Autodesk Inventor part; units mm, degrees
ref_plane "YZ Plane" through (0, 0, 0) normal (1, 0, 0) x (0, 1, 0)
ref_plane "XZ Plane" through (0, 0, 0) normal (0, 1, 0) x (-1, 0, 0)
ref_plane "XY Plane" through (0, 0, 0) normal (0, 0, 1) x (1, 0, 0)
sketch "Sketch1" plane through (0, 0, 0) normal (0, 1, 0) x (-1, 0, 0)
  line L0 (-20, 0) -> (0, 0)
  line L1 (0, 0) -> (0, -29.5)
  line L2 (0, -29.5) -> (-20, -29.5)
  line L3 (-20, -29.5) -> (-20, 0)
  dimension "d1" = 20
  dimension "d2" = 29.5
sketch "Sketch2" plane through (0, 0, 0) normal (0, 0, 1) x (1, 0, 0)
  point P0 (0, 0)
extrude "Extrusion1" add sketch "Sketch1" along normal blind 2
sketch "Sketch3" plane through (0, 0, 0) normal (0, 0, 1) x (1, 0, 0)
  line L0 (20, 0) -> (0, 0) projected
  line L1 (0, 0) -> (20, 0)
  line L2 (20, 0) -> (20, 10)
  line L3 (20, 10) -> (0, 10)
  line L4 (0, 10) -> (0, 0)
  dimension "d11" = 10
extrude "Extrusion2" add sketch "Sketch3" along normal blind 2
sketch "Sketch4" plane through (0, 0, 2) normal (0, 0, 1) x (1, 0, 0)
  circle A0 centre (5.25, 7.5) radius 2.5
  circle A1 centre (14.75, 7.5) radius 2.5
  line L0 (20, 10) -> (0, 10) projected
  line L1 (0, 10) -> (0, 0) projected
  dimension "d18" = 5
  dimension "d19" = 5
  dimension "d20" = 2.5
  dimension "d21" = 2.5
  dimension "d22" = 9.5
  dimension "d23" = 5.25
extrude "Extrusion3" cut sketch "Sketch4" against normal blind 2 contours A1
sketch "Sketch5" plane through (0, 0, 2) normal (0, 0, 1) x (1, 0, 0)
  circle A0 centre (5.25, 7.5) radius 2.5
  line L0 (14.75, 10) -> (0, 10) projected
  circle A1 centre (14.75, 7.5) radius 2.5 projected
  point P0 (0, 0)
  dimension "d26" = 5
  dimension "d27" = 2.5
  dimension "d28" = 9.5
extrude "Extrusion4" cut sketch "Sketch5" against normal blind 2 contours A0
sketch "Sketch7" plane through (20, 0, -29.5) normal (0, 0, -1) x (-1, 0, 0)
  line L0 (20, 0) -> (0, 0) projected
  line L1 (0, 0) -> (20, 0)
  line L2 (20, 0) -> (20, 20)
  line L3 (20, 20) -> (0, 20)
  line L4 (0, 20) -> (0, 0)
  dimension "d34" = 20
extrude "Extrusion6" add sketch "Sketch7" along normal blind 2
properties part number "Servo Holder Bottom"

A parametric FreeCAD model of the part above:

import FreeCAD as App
import Part
import Sketcher

V = App.Vector


def add_polygon(sketch, points):
    """Adds a closed chain of lines whose ends are joined by coincident constraints."""
    first, n = sketch.GeometryCount, len(points)
    for a, b in zip(points, points[1:] + points[:1]):
        sketch.addGeometry(Part.LineSegment(App.Vector(*a, 0), App.Vector(*b, 0)), False)
    for i in range(n):
        sketch.addConstraint(Sketcher.Constraint("Coincident", first + i, 2, first + (i + 1) % n, 1))

doc = App.newDocument("Part")
body = doc.addObject("PartDesign::Body", "Body")

sketch1 = body.newObject("Sketcher::SketchObject", "Sketch")
sketch1.AttachmentSupport = (doc.getObject("XZ_Plane"), [""])
sketch1.MapMode = "FlatFace"
add_polygon(sketch1, [(0, 0), (20, 0), (20, -30), (0, -30)])
sketch1.addConstraint([
    Sketcher.Constraint("Horizontal", 0),
    Sketcher.Constraint("Vertical", 1),
    Sketcher.Constraint("Horizontal", 2),
    Sketcher.Constraint("Vertical", 3),
    Sketcher.Constraint("Coincident", 3, 2, -1, 1),
    Sketcher.Constraint("DistanceX", 0, 1, 0, 2, 20.0),
    Sketcher.Constraint("DistanceY", 1, 2, 1, 1, 29.5),
])
pad1 = body.newObject("PartDesign::Pad", "Pad")
pad1.Profile = sketch1
pad1.Length = 2
pad1.Reversed = True

sketch2 = body.newObject("Sketcher::SketchObject", "Sketch001")
sketch2.AttachmentSupport = (doc.getObject("XY_Plane"), [""])
sketch2.MapMode = "FlatFace"
add_polygon(sketch2, [(0, 0), (20, 0), (20, 10), (0, 10)])
sketch2.addConstraint([
    Sketcher.Constraint("Horizontal", 0),
    Sketcher.Constraint("Vertical", 1),
    Sketcher.Constraint("Horizontal", 2),
    Sketcher.Constraint("Vertical", 3),
    Sketcher.Constraint("Coincident", 3, 2, -1, 1),
    Sketcher.Constraint("DistanceY", 1, 1, 1, 2, 10.0),
    Sketcher.Constraint("DistanceX", 0, 1, 0, 2, 20.0),
])
pad2 = body.newObject("PartDesign::Pad", "Pad001")
pad2.Profile = sketch2
pad2.Length = 2

sketch3 = body.newObject("Sketcher::SketchObject", "Sketch002")
sketch3.AttachmentSupport = (doc.getObject("XY_Plane"), [""])
sketch3.MapMode = "FlatFace"
sketch3.AttachmentOffset = App.Placement(V(0, 0, 2), App.Rotation())
sketch3.addGeometry(Part.Circle(V(14.8, 7.5, 0), V(0, 0, 1), 2.5), False)
sketch3.addConstraint([
    Sketcher.Constraint("Diameter", 0, 5.0),
    Sketcher.Constraint("DistanceY", -1, 1, 0, 3, 7.5),
    Sketcher.Constraint("DistanceX", -1, 1, 0, 3, 14.75),
])
pocket1 = body.newObject("PartDesign::Pocket", "Pocket")
pocket1.Profile = sketch3
pocket1.Length = 2

sketch4 = body.newObject("Sketcher::SketchObject", "Sketch003")
sketch4.AttachmentSupport = (doc.getObject("XY_Plane"), [""])
sketch4.MapMode = "FlatFace"
sketch4.AttachmentOffset = App.Placement(V(0, 0, 2), App.Rotation())
sketch4.addGeometry(Part.Circle(V(5.2, 7.5, 0), V(0, 0, 1), 2.5), False)
sketch4.addConstraint([
    Sketcher.Constraint("Diameter", 0, 5.0),
    Sketcher.Constraint("DistanceY", -1, 1, 0, 3, 7.5),
    Sketcher.Constraint("DistanceX", -1, 1, 0, 3, 5.25),
])
pocket2 = body.newObject("PartDesign::Pocket", "Pocket001")
pocket2.Profile = sketch4
pocket2.Length = 2

sketch5 = body.newObject("Sketcher::SketchObject", "Sketch004")
sketch5.AttachmentSupport = (doc.getObject("XY_Plane"), [""])
sketch5.MapMode = "FlatFace"
sketch5.AttachmentOffset = App.Placement(V(0, 0, -29.5), App.Rotation())
add_polygon(sketch5, [(20, 0), (0, 0), (0, 20), (20, 20)])
sketch5.addConstraint([
    Sketcher.Constraint("Horizontal", 0),
    Sketcher.Constraint("Vertical", 1),
    Sketcher.Constraint("Horizontal", 2),
    Sketcher.Constraint("Vertical", 3),
    Sketcher.Constraint("Coincident", 0, 2, -1, 1),
    Sketcher.Constraint("Equal", 2, 1),
    Sketcher.Constraint("DistanceX", 0, 2, 0, 1, 20.0),
])
pad3 = body.newObject("PartDesign::Pad", "Pad002")
pad3.Profile = sketch5
pad3.Length = 2
pad3.Reversed = True

doc.recompute()
